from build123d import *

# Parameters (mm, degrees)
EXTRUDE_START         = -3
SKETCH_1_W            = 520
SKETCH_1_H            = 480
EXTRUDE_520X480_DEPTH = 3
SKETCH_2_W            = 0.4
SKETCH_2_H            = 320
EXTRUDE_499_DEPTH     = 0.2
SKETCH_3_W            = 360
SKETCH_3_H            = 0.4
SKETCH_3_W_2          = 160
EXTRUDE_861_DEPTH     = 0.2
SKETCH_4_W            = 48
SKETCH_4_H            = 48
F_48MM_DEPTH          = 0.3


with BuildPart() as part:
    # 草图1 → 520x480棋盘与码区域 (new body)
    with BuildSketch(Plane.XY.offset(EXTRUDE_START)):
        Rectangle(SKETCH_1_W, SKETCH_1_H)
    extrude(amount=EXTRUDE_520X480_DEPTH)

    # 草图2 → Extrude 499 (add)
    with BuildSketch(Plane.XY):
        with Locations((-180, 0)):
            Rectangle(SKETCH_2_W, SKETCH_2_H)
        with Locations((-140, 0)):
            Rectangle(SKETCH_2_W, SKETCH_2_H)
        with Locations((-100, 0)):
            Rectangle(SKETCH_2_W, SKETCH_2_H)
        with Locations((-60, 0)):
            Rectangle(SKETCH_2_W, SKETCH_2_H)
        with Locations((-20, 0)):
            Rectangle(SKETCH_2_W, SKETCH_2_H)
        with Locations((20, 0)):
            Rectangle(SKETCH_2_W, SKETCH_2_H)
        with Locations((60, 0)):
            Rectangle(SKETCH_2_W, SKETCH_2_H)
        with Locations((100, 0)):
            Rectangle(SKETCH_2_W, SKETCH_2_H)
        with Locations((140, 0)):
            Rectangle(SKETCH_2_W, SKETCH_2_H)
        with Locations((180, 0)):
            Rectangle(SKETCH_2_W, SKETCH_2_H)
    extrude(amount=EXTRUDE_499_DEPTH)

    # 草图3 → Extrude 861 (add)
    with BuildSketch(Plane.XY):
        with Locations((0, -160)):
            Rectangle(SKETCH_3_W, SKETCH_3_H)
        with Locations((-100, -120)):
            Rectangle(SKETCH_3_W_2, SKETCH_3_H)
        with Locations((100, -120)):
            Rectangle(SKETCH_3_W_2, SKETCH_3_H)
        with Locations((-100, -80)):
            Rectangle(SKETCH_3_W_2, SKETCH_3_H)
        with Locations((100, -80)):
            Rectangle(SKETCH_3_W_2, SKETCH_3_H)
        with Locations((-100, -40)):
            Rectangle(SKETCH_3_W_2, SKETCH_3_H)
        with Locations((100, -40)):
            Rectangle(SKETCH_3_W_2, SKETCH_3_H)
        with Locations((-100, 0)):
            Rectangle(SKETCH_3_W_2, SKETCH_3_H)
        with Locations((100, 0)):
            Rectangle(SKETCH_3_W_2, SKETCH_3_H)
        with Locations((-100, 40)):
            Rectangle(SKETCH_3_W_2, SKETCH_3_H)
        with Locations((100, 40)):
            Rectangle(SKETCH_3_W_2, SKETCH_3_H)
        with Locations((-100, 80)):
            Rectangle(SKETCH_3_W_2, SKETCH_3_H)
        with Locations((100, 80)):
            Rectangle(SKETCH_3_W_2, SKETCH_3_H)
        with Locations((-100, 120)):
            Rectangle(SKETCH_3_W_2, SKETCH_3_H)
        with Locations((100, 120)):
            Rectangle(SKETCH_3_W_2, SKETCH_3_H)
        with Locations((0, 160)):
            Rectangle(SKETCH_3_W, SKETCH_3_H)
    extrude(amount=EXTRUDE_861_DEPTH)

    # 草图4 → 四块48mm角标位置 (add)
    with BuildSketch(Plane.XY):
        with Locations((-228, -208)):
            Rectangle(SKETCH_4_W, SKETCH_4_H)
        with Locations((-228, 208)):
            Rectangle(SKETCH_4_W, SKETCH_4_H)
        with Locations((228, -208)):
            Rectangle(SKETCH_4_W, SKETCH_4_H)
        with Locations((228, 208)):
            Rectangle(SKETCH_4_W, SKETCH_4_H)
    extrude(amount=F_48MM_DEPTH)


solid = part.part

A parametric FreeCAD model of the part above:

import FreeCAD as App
import Part
import Sketcher
from FreeCAD import Vector

doc = App.newDocument("Part")
body = doc.addObject("PartDesign::Body", "Body")

# Sketch on XY plane
sketch1 = body.newObject("Sketcher::SketchObject", "Sketch")
sketch1.AttachmentSupport = (doc.getObject("XY_Plane"), [""])
sketch1.MapMode = "FlatFace"
sketch1.AttachmentOffset = App.Placement(Vector(0, 0, -3), App.Rotation())
sketch1.addGeometry([
    Part.LineSegment(Vector(-260, 240, 0), Vector(-260, -240, 0)),
    Part.LineSegment(Vector(-260, -240, 0), Vector(260, -240, 0)),
    Part.LineSegment(Vector(260, -240, 0), Vector(260, 240, 0)),
    Part.LineSegment(Vector(260, 240, 0), Vector(-260, 240, 0)),
], False)
sketch1.addConstraint([
    Sketcher.Constraint("Coincident", 0, 2, 1, 1),
    Sketcher.Constraint("Coincident", 1, 2, 2, 1),
    Sketcher.Constraint("Coincident", 2, 2, 3, 1),
    Sketcher.Constraint("Coincident", 3, 2, 0, 1),
    Sketcher.Constraint("Vertical", 0),
    Sketcher.Constraint("Horizontal", 1),
    Sketcher.Constraint("Vertical", 2),
    Sketcher.Constraint("Horizontal", 3),
    Sketcher.Constraint("Symmetric", 0, 2, 2, 2, -1, 1),
    Sketcher.Constraint("DistanceX", 1, 1, 1, 2, 520.0),
    Sketcher.Constraint("DistanceY", 0, 2, 0, 1, 480.0),
])
pad1 = body.newObject("PartDesign::Pad", "Pad")
pad1.Profile = sketch1
pad1.Length = 3

# Sketch on XY plane
sketch2 = body.newObject("Sketcher::SketchObject", "Sketch001")
sketch2.AttachmentSupport = (doc.getObject("XY_Plane"), [""])
sketch2.MapMode = "FlatFace"
sketch2.addGeometry([
    Part.LineSegment(Vector(-180.2, 160, 0), Vector(-180.2, -160, 0)),  # 0
    Part.LineSegment(Vector(-180.2, -160, 0), Vector(-179.8, -160, 0)),  # 1
    Part.LineSegment(Vector(-179.8, -160, 0), Vector(-179.8, 160, 0)),  # 2
    Part.LineSegment(Vector(-179.8, 160, 0), Vector(-180.2, 160, 0)),  # 3
    Part.LineSegment(Vector(-140.2, 160, 0), Vector(-140.2, -160, 0)),  # 4
    Part.LineSegment(Vector(-140.2, -160, 0), Vector(-139.8, -160, 0)),  # 5
    Part.LineSegment(Vector(-139.8, -160, 0), Vector(-139.8, 160, 0)),  # 6
    Part.LineSegment(Vector(-139.8, 160, 0), Vector(-140.2, 160, 0)),  # 7
    Part.LineSegment(Vector(-100.2, 160, 0), Vector(-100.2, -160, 0)),  # 8
    Part.LineSegment(Vector(-100.2, -160, 0), Vector(-99.8, -160, 0)),  # 9
    Part.LineSegment(Vector(-99.8, -160, 0), Vector(-99.8, 160, 0)),  # 10
    Part.LineSegment(Vector(-99.8, 160, 0), Vector(-100.2, 160, 0)),  # 11
    Part.LineSegment(Vector(-60.2, 160, 0), Vector(-60.2, -160, 0)),  # 12
    Part.LineSegment(Vector(-60.2, -160, 0), Vector(-59.8, -160, 0)),  # 13
    Part.LineSegment(Vector(-59.8, -160, 0), Vector(-59.8, 160, 0)),  # 14
    Part.LineSegment(Vector(-59.8, 160, 0), Vector(-60.2, 160, 0)),  # 15
    Part.LineSegment(Vector(-20.2, 160, 0), Vector(-20.2, -160, 0)),  # 16
    Part.LineSegment(Vector(-20.2, -160, 0), Vector(-19.8, -160, 0)),  # 17
    Part.LineSegment(Vector(-19.8, -160, 0), Vector(-19.8, 160, 0)),  # 18
    Part.LineSegment(Vector(-19.8, 160, 0), Vector(-20.2, 160, 0)),  # 19
    Part.LineSegment(Vector(19.8, 160, 0), Vector(19.8, -160, 0)),  # 20
    Part.LineSegment(Vector(19.8, -160, 0), Vector(20.2, -160, 0)),  # 21
    Part.LineSegment(Vector(20.2, -160, 0), Vector(20.2, 160, 0)),  # 22
    Part.LineSegment(Vector(20.2, 160, 0), Vector(19.8, 160, 0)),  # 23
    Part.LineSegment(Vector(59.8, 160, 0), Vector(59.8, -160, 0)),  # 24
    Part.LineSegment(Vector(59.8, -160, 0), Vector(60.2, -160, 0)),  # 25
    Part.LineSegment(Vector(60.2, -160, 0), Vector(60.2, 160, 0)),  # 26
    Part.LineSegment(Vector(60.2, 160, 0), Vector(59.8, 160, 0)),  # 27
    Part.LineSegment(Vector(99.8, 160, 0), Vector(99.8, -160, 0)),  # 28
    Part.LineSegment(Vector(99.8, -160, 0), Vector(100.2, -160, 0)),  # 29
    Part.LineSegment(Vector(100.2, -160, 0), Vector(100.2, 160, 0)),  # 30
    Part.LineSegment(Vector(100.2, 160, 0), Vector(99.8, 160, 0)),  # 31
    Part.LineSegment(Vector(139.8, 160, 0), Vector(139.8, -160, 0)),  # 32
    Part.LineSegment(Vector(139.8, -160, 0), Vector(140.2, -160, 0)),  # 33
    Part.LineSegment(Vector(140.2, -160, 0), Vector(140.2, 160, 0)),  # 34
    Part.LineSegment(Vector(140.2, 160, 0), Vector(139.8, 160, 0)),  # 35
    Part.LineSegment(Vector(179.8, 160, 0), Vector(179.8, -160, 0)),  # 36
    Part.LineSegment(Vector(179.8, -160, 0), Vector(180.2, -160, 0)),  # 37
    Part.LineSegment(Vector(180.2, -160, 0), Vector(180.2, 160, 0)),  # 38
    Part.LineSegment(Vector(180.2, 160, 0), Vector(179.8, 160, 0)),  # 39
], False)
sketch2.addConstraint([
    Sketcher.Constraint("Coincident", 0, 2, 1, 1),
    Sketcher.Constraint("Coincident", 1, 2, 2, 1),
    Sketcher.Constraint("Coincident", 2, 2, 3, 1),
    Sketcher.Constraint("Coincident", 3, 2, 0, 1),
    Sketcher.Constraint("Coincident", 4, 2, 5, 1),
    Sketcher.Constraint("Coincident", 5, 2, 6, 1),
    Sketcher.Constraint("Coincident", 6, 2, 7, 1),
    Sketcher.Constraint("Coincident", 7, 2, 4, 1),
    Sketcher.Constraint("Coincident", 8, 2, 9, 1),
    Sketcher.Constraint("Coincident", 9, 2, 10, 1),
    Sketcher.Constraint("Coincident", 10, 2, 11, 1),
    Sketcher.Constraint("Coincident", 11, 2, 8, 1),
    Sketcher.Constraint("Coincident", 12, 2, 13, 1),
    Sketcher.Constraint("Coincident", 13, 2, 14, 1),
    Sketcher.Constraint("Coincident", 14, 2, 15, 1),
    Sketcher.Constraint("Coincident", 15, 2, 12, 1),
    Sketcher.Constraint("Coincident", 16, 2, 17, 1),
    Sketcher.Constraint("Coincident", 17, 2, 18, 1),
    Sketcher.Constraint("Coincident", 18, 2, 19, 1),
    Sketcher.Constraint("Coincident", 19, 2, 16, 1),
    Sketcher.Constraint("Coincident", 20, 2, 21, 1),
    Sketcher.Constraint("Coincident", 21, 2, 22, 1),
    Sketcher.Constraint("Coincident", 22, 2, 23, 1),
    Sketcher.Constraint("Coincident", 23, 2, 20, 1),
    Sketcher.Constraint("Coincident", 24, 2, 25, 1),
    Sketcher.Constraint("Coincident", 25, 2, 26, 1),
    Sketcher.Constraint("Coincident", 26, 2, 27, 1),
    Sketcher.Constraint("Coincident", 27, 2, 24, 1),
    Sketcher.Constraint("Coincident", 28, 2, 29, 1),
    Sketcher.Constraint("Coincident", 29, 2, 30, 1),
    Sketcher.Constraint("Coincident", 30, 2, 31, 1),
    Sketcher.Constraint("Coincident", 31, 2, 28, 1),
    Sketcher.Constraint("Coincident", 32, 2, 33, 1),
    Sketcher.Constraint("Coincident", 33, 2, 34, 1),
    Sketcher.Constraint("Coincident", 34, 2, 35, 1),
    Sketcher.Constraint("Coincident", 35, 2, 32, 1),
    Sketcher.Constraint("Coincident", 36, 2, 37, 1),
    Sketcher.Constraint("Coincident", 37, 2, 38, 1),
    Sketcher.Constraint("Coincident", 38, 2, 39, 1),
    Sketcher.Constraint("Coincident", 39, 2, 36, 1),
    Sketcher.Constraint("Vertical", 0),
    Sketcher.Constraint("Horizontal", 1),
    Sketcher.Constraint("Vertical", 2),
    Sketcher.Constraint("Horizontal", 3),
    Sketcher.Constraint("Vertical", 4),
    Sketcher.Constraint("Horizontal", 5),
    Sketcher.Constraint("Vertical", 6),
    Sketcher.Constraint("Horizontal", 7),
    Sketcher.Constraint("Vertical", 8),
    Sketcher.Constraint("Horizontal", 9),
    Sketcher.Constraint("Vertical", 10),
    Sketcher.Constraint("Horizontal", 11),
    Sketcher.Constraint("Vertical", 12),
    Sketcher.Constraint("Horizontal", 13),
    Sketcher.Constraint("Vertical", 14),
    Sketcher.Constraint("Horizontal", 15),
    Sketcher.Constraint("Vertical", 16),
    Sketcher.Constraint("Horizontal", 17),
    Sketcher.Constraint("Vertical", 18),
    Sketcher.Constraint("Horizontal", 19),
    Sketcher.Constraint("Vertical", 20),
    Sketcher.Constraint("Horizontal", 21),
    Sketcher.Constraint("Vertical", 22),
    Sketcher.Constraint("Horizontal", 23),
    Sketcher.Constraint("Vertical", 24),
    Sketcher.Constraint("Horizontal", 25),
    Sketcher.Constraint("Vertical", 26),
    Sketcher.Constraint("Horizontal", 27),
    Sketcher.Constraint("Vertical", 28),
    Sketcher.Constraint("Horizontal", 29),
    Sketcher.Constraint("Vertical", 30),
    Sketcher.Constraint("Horizontal", 31),
    Sketcher.Constraint("Vertical", 32),
    Sketcher.Constraint("Horizontal", 33),
    Sketcher.Constraint("Vertical", 34),
    Sketcher.Constraint("Horizontal", 35),
    Sketcher.Constraint("Vertical", 36),
    Sketcher.Constraint("Horizontal", 37),
    Sketcher.Constraint("Vertical", 38),
    Sketcher.Constraint("Horizontal", 39),
    Sketcher.Constraint("Symmetric", 18, 2, 20, 2, -1, 1),
    Sketcher.Constraint("Symmetric", 16, 2, 22, 2, -1, 1),
    Sketcher.Constraint("Symmetric", 14, 2, 24, 2, -1, 1),
    Sketcher.Constraint("Symmetric", 12, 2, 26, 2, -1, 1),
    Sketcher.Constraint("Symmetric", 10, 2, 28, 2, -1, 1),
    Sketcher.Constraint("Symmetric", 8, 2, 30, 2, -1, 1),
    Sketcher.Constraint("Symmetric", 6, 2, 32, 2, -1, 1),
    Sketcher.Constraint("Symmetric", 4, 2, 34, 2, -1, 1),
    Sketcher.Constraint("Symmetric", 2, 2, 36, 2, -1, 1),
    Sketcher.Constraint("Symmetric", 0, 2, 38, 2, -1, 1),
    Sketcher.Constraint("Horizontal", 1, 2, 4, 2),
    Sketcher.Constraint("Horizontal", 3, 2, 6, 2),
    Sketcher.Constraint("Horizontal", 5, 2, 8, 2),
    Sketcher.Constraint("Horizontal", 7, 2, 10, 2),
    Sketcher.Constraint("Horizontal", 9, 2, 12, 2),
    Sketcher.Constraint("Horizontal", 11, 2, 14, 2),
    Sketcher.Constraint("Horizontal", 13, 2, 16, 2),
    Sketcher.Constraint("Horizontal", 15, 2, 18, 2),
    Sketcher.Constraint("Horizontal", 17, 2, 20, 2),
    Sketcher.Constraint("Equal", 3, 5),
    Sketcher.Constraint("Equal", 7, 9),
    Sketcher.Constraint("Equal", 11, 13),
    Sketcher.Constraint("Equal", 15, 17),
    Sketcher.Constraint("DistanceY", 0, 2, 0, 1, 320.0),
    Sketcher.Constraint("DistanceX", 1, 1, 1, 2, 0.4),
    Sketcher.Constraint("DistanceX", 0, 2, 4, 2, 40.0),
    Sketcher.Constraint("DistanceX", 4, 2, 8, 2, 40.0),
    Sketcher.Constraint("DistanceX", 8, 2, 12, 2, 40.0),
    Sketcher.Constraint("DistanceX", 12, 2, 16, 2, 40.0),
    Sketcher.Constraint("DistanceX", 16, 2, 20, 2, 40.0),
])
pad2 = body.newObject("PartDesign::Pad", "Pad001")
pad2.Profile = sketch2
pad2.Length = 0.2

# Sketch on XY plane
sketch3 = body.newObject("Sketcher::SketchObject", "Sketch002")
sketch3.AttachmentSupport = (doc.getObject("XY_Plane"), [""])
sketch3.MapMode = "FlatFace"
sketch3.addGeometry([
    Part.LineSegment(Vector(-180, -159.8, 0), Vector(-180, -160.2, 0)),  # 0
    Part.LineSegment(Vector(-180, -160.2, 0), Vector(180, -160.2, 0)),  # 1
    Part.LineSegment(Vector(180, -160.2, 0), Vector(180, -159.8, 0)),  # 2
    Part.LineSegment(Vector(180, -159.8, 0), Vector(-180, -159.8, 0)),  # 3
    Part.LineSegment(Vector(-180, -119.8, 0), Vector(-180, -120.2, 0)),  # 4
    Part.LineSegment(Vector(-180, -120.2, 0), Vector(-20, -120.2, 0)),  # 5
    Part.LineSegment(Vector(-20, -120.2, 0), Vector(-20, -119.8, 0)),  # 6
    Part.LineSegment(Vector(-20, -119.8, 0), Vector(-180, -119.8, 0)),  # 7
    Part.LineSegment(Vector(20, -119.8, 0), Vector(20, -120.2, 0)),  # 8
    Part.LineSegment(Vector(20, -120.2, 0), Vector(180, -120.2, 0)),  # 9
    Part.LineSegment(Vector(180, -120.2, 0), Vector(180, -119.8, 0)),  # 10
    Part.LineSegment(Vector(180, -119.8, 0), Vector(20, -119.8, 0)),  # 11
    Part.LineSegment(Vector(-180, -79.8, 0), Vector(-180, -80.2, 0)),  # 12
    Part.LineSegment(Vector(-180, -80.2, 0), Vector(-20, -80.2, 0)),  # 13
    Part.LineSegment(Vector(-20, -80.2, 0), Vector(-20, -79.8, 0)),  # 14
    Part.LineSegment(Vector(-20, -79.8, 0), Vector(-180, -79.8, 0)),  # 15
    Part.LineSegment(Vector(20, -79.8, 0), Vector(20, -80.2, 0)),  # 16
    Part.LineSegment(Vector(20, -80.2, 0), Vector(180, -80.2, 0)),  # 17
    Part.LineSegment(Vector(180, -80.2, 0), Vector(180, -79.8, 0)),  # 18
    Part.LineSegment(Vector(180, -79.8, 0), Vector(20, -79.8, 0)),  # 19
    Part.LineSegment(Vector(-180, -39.8, 0), Vector(-180, -40.2, 0)),  # 20
    Part.LineSegment(Vector(-180, -40.2, 0), Vector(-20, -40.2, 0)),  # 21
    Part.LineSegment(Vector(-20, -40.2, 0), Vector(-20, -39.8, 0)),  # 22
    Part.LineSegment(Vector(-20, -39.8, 0), Vector(-180, -39.8, 0)),  # 23
    Part.LineSegment(Vector(20, -39.8, 0), Vector(20, -40.2, 0)),  # 24
    Part.LineSegment(Vector(20, -40.2, 0), Vector(180, -40.2, 0)),  # 25
    Part.LineSegment(Vector(180, -40.2, 0), Vector(180, -39.8, 0)),  # 26
    Part.LineSegment(Vector(180, -39.8, 0), Vector(20, -39.8, 0)),  # 27
    Part.LineSegment(Vector(-180, 0.2, 0), Vector(-180, -0.2, 0)),  # 28
    Part.LineSegment(Vector(-180, -0.2, 0), Vector(-20, -0.2, 0)),  # 29
    Part.LineSegment(Vector(-20, -0.2, 0), Vector(-20, 0.2, 0)),  # 30
    Part.LineSegment(Vector(-20, 0.2, 0), Vector(-180, 0.2, 0)),  # 31
    Part.LineSegment(Vector(20, 0.2, 0), Vector(20, -0.2, 0)),  # 32
    Part.LineSegment(Vector(20, -0.2, 0), Vector(180, -0.2, 0)),  # 33
    Part.LineSegment(Vector(180, -0.2, 0), Vector(180, 0.2, 0)),  # 34
    Part.LineSegment(Vector(180, 0.2, 0), Vector(20, 0.2, 0)),  # 35
    Part.LineSegment(Vector(-180, 40.2, 0), Vector(-180, 39.8, 0)),  # 36
    Part.LineSegment(Vector(-180, 39.8, 0), Vector(-20, 39.8, 0)),  # 37
    Part.LineSegment(Vector(-20, 39.8, 0), Vector(-20, 40.2, 0)),  # 38
    Part.LineSegment(Vector(-20, 40.2, 0), Vector(-180, 40.2, 0)),  # 39
    Part.LineSegment(Vector(20, 40.2, 0), Vector(20, 39.8, 0)),  # 40
    Part.LineSegment(Vector(20, 39.8, 0), Vector(180, 39.8, 0)),  # 41
    Part.LineSegment(Vector(180, 39.8, 0), Vector(180, 40.2, 0)),  # 42
    Part.LineSegment(Vector(180, 40.2, 0), Vector(20, 40.2, 0)),  # 43
    Part.LineSegment(Vector(-180, 80.2, 0), Vector(-180, 79.8, 0)),  # 44
    Part.LineSegment(Vector(-180, 79.8, 0), Vector(-20, 79.8, 0)),  # 45
    Part.LineSegment(Vector(-20, 79.8, 0), Vector(-20, 80.2, 0)),  # 46
    Part.LineSegment(Vector(-20, 80.2, 0), Vector(-180, 80.2, 0)),  # 47
    Part.LineSegment(Vector(20, 80.2, 0), Vector(20, 79.8, 0)),  # 48
    Part.LineSegment(Vector(20, 79.8, 0), Vector(180, 79.8, 0)),  # 49
    Part.LineSegment(Vector(180, 79.8, 0), Vector(180, 80.2, 0)),  # 50
    Part.LineSegment(Vector(180, 80.2, 0), Vector(20, 80.2, 0)),  # 51
    Part.LineSegment(Vector(-180, 120.2, 0), Vector(-180, 119.8, 0)),  # 52
    Part.LineSegment(Vector(-180, 119.8, 0), Vector(-20, 119.8, 0)),  # 53
    Part.LineSegment(Vector(-20, 119.8, 0), Vector(-20, 120.2, 0)),  # 54
    Part.LineSegment(Vector(-20, 120.2, 0), Vector(-180, 120.2, 0)),  # 55
    Part.LineSegment(Vector(20, 120.2, 0), Vector(20, 119.8, 0)),  # 56
    Part.LineSegment(Vector(20, 119.8, 0), Vector(180, 119.8, 0)),  # 57
    Part.LineSegment(Vector(180, 119.8, 0), Vector(180, 120.2, 0)),  # 58
    Part.LineSegment(Vector(180, 120.2, 0), Vector(20, 120.2, 0)),  # 59
    Part.LineSegment(Vector(-180, 160.2, 0), Vector(-180, 159.8, 0)),  # 60
    Part.LineSegment(Vector(-180, 159.8, 0), Vector(180, 159.8, 0)),  # 61
    Part.LineSegment(Vector(180, 159.8, 0), Vector(180, 160.2, 0)),  # 62
    Part.LineSegment(Vector(180, 160.2, 0), Vector(-180, 160.2, 0)),  # 63
], False)
sketch3.addConstraint([
    Sketcher.Constraint("Coincident", 0, 2, 1, 1),
    Sketcher.Constraint("Coincident", 1, 2, 2, 1),
    Sketcher.Constraint("Coincident", 2, 2, 3, 1),
    Sketcher.Constraint("Coincident", 3, 2, 0, 1),
    Sketcher.Constraint("Coincident", 4, 2, 5, 1),
    Sketcher.Constraint("Coincident", 5, 2, 6, 1),
    Sketcher.Constraint("Coincident", 6, 2, 7, 1),
    Sketcher.Constraint("Coincident", 7, 2, 4, 1),
    Sketcher.Constraint("Coincident", 8, 2, 9, 1),
    Sketcher.Constraint("Coincident", 9, 2, 10, 1),
    Sketcher.Constraint("Coincident", 10, 2, 11, 1),
    Sketcher.Constraint("Coincident", 11, 2, 8, 1),
    Sketcher.Constraint("Coincident", 12, 2, 13, 1),
    Sketcher.Constraint("Coincident", 13, 2, 14, 1),
    Sketcher.Constraint("Coincident", 14, 2, 15, 1),
    Sketcher.Constraint("Coincident", 15, 2, 12, 1),
    Sketcher.Constraint("Coincident", 16, 2, 17, 1),
    Sketcher.Constraint("Coincident", 17, 2, 18, 1),
    Sketcher.Constraint("Coincident", 18, 2, 19, 1),
    Sketcher.Constraint("Coincident", 19, 2, 16, 1),
    Sketcher.Constraint("Coincident", 20, 2, 21, 1),
    Sketcher.Constraint("Coincident", 21, 2, 22, 1),
    Sketcher.Constraint("Coincident", 22, 2, 23, 1),
    Sketcher.Constraint("Coincident", 23, 2, 20, 1),
    Sketcher.Constraint("Coincident", 24, 2, 25, 1),
    Sketcher.Constraint("Coincident", 25, 2, 26, 1),
    Sketcher.Constraint("Coincident", 26, 2, 27, 1),
    Sketcher.Constraint("Coincident", 27, 2, 24, 1),
    Sketcher.Constraint("Coincident", 28, 2, 29, 1),
    Sketcher.Constraint("Coincident", 29, 2, 30, 1),
    Sketcher.Constraint("Coincident", 30, 2, 31, 1),
    Sketcher.Constraint("Coincident", 31, 2, 28, 1),
    Sketcher.Constraint("Coincident", 32, 2, 33, 1),
    Sketcher.Constraint("Coincident", 33, 2, 34, 1),
    Sketcher.Constraint("Coincident", 34, 2, 35, 1),
    Sketcher.Constraint("Coincident", 35, 2, 32, 1),
    Sketcher.Constraint("Coincident", 36, 2, 37, 1),
    Sketcher.Constraint("Coincident", 37, 2, 38, 1),
    Sketcher.Constraint("Coincident", 38, 2, 39, 1),
    Sketcher.Constraint("Coincident", 39, 2, 36, 1),
    Sketcher.Constraint("Coincident", 40, 2, 41, 1),
    Sketcher.Constraint("Coincident", 41, 2, 42, 1),
    Sketcher.Constraint("Coincident", 42, 2, 43, 1),
    Sketcher.Constraint("Coincident", 43, 2, 40, 1),
    Sketcher.Constraint("Coincident", 44, 2, 45, 1),
    Sketcher.Constraint("Coincident", 45, 2, 46, 1),
    Sketcher.Constraint("Coincident", 46, 2, 47, 1),
    Sketcher.Constraint("Coincident", 47, 2, 44, 1),
    Sketcher.Constraint("Coincident", 48, 2, 49, 1),
    Sketcher.Constraint("Coincident", 49, 2, 50, 1),
    Sketcher.Constraint("Coincident", 50, 2, 51, 1),
    Sketcher.Constraint("Coincident", 51, 2, 48, 1),
    Sketcher.Constraint("Coincident", 52, 2, 53, 1),
    Sketcher.Constraint("Coincident", 53, 2, 54, 1),
    Sketcher.Constraint("Coincident", 54, 2, 55, 1),
    Sketcher.Constraint("Coincident", 55, 2, 52, 1),
    Sketcher.Constraint("Coincident", 56, 2, 57, 1),
    Sketcher.Constraint("Coincident", 57, 2, 58, 1),
    Sketcher.Constraint("Coincident", 58, 2, 59, 1),
    Sketcher.Constraint("Coincident", 59, 2, 56, 1),
    Sketcher.Constraint("Coincident", 60, 2, 61, 1),
    Sketcher.Constraint("Coincident", 61, 2, 62, 1),
    Sketcher.Constraint("Coincident", 62, 2, 63, 1),
    Sketcher.Constraint("Coincident", 63, 2, 60, 1),
    Sketcher.Constraint("Vertical", 0),
    Sketcher.Constraint("Horizontal", 1),
    Sketcher.Constraint("Vertical", 2),
    Sketcher.Constraint("Horizontal", 3),
    Sketcher.Constraint("Vertical", 4),
    Sketcher.Constraint("Horizontal", 5),
    Sketcher.Constraint("Vertical", 6),
    Sketcher.Constraint("Horizontal", 7),
    Sketcher.Constraint("Vertical", 8),
    Sketcher.Constraint("Horizontal", 9),
    Sketcher.Constraint("Vertical", 10),
    Sketcher.Constraint("Horizontal", 11),
    Sketcher.Constraint("Vertical", 12),
    Sketcher.Constraint("Horizontal", 13),
    Sketcher.Constraint("Vertical", 14),
    Sketcher.Constraint("Horizontal", 15),
    Sketcher.Constraint("Vertical", 16),
    Sketcher.Constraint("Horizontal", 17),
    Sketcher.Constraint("Vertical", 18),
    Sketcher.Constraint("Horizontal", 19),
    Sketcher.Constraint("Vertical", 20),
    Sketcher.Constraint("Horizontal", 21),
    Sketcher.Constraint("Vertical", 22),
    Sketcher.Constraint("Horizontal", 23),
    Sketcher.Constraint("Vertical", 24),
    Sketcher.Constraint("Horizontal", 25),
    Sketcher.Constraint("Vertical", 26),
    Sketcher.Constraint("Horizontal", 27),
    Sketcher.Constraint("Vertical", 28),
    Sketcher.Constraint("Horizontal", 29),
    Sketcher.Constraint("Vertical", 30),
    Sketcher.Constraint("Horizontal", 31),
    Sketcher.Constraint("Vertical", 32),
    Sketcher.Constraint("Horizontal", 33),
    Sketcher.Constraint("Vertical", 34),
    Sketcher.Constraint("Horizontal", 35),
    Sketcher.Constraint("Vertical", 36),
    Sketcher.Constraint("Horizontal", 37),
    Sketcher.Constraint("Vertical", 38),
    Sketcher.Constraint("Horizontal", 39),
    Sketcher.Constraint("Vertical", 40),
    Sketcher.Constraint("Horizontal", 41),
    Sketcher.Constraint("Vertical", 42),
    Sketcher.Constraint("Horizontal", 43),
    Sketcher.Constraint("Vertical", 44),
    Sketcher.Constraint("Horizontal", 45),
    Sketcher.Constraint("Vertical", 46),
    Sketcher.Constraint("Horizontal", 47),
    Sketcher.Constraint("Vertical", 48),
    Sketcher.Constraint("Horizontal", 49),
    Sketcher.Constraint("Vertical", 50),
    Sketcher.Constraint("Horizontal", 51),
    Sketcher.Constraint("Vertical", 52),
    Sketcher.Constraint("Horizontal", 53),
    Sketcher.Constraint("Vertical", 54),
    Sketcher.Constraint("Horizontal", 55),
    Sketcher.Constraint("Vertical", 56),
    Sketcher.Constraint("Horizontal", 57),
    Sketcher.Constraint("Vertical", 58),
    Sketcher.Constraint("Horizontal", 59),
    Sketcher.Constraint("Vertical", 60),
    Sketcher.Constraint("Horizontal", 61),
    Sketcher.Constraint("Vertical", 62),
    Sketcher.Constraint("Horizontal", 63),
    Sketcher.Constraint("Symmetric", 30, 2, 32, 2, -1, 1),
    Sketcher.Constraint("Symmetric", 28, 2, 34, 2, -1, 1),
    Sketcher.Constraint("Symmetric", 26, 2, 36, 2, -1, 1),
    Sketcher.Constraint("Symmetric", 24, 2, 38, 2, -1, 1),
    Sketcher.Constraint("Symmetric", 22, 2, 40, 2, -1, 1),
    Sketcher.Constraint("Symmetric", 20, 2, 42, 2, -1, 1),
    Sketcher.Constraint("Symmetric", 18, 2, 44, 2, -1, 1),
    Sketcher.Constraint("Symmetric", 16, 2, 46, 2, -1, 1),
    Sketcher.Constraint("Symmetric", 14, 2, 48, 2, -1, 1),
    Sketcher.Constraint("Symmetric", 12, 2, 50, 2, -1, 1),
    Sketcher.Constraint("Symmetric", 10, 2, 52, 2, -1, 1),
    Sketcher.Constraint("Symmetric", 8, 2, 54, 2, -1, 1),
    Sketcher.Constraint("Symmetric", 6, 2, 56, 2, -1, 1),
    Sketcher.Constraint("Symmetric", 4, 2, 58, 2, -1, 1),
    Sketcher.Constraint("Symmetric", 2, 2, 60, 2, -1, 1),
    Sketcher.Constraint("Symmetric", 0, 2, 62, 2, -1, 1),
    Sketcher.Constraint("Symmetric", 5, 2, 8, 2, -2),
    Sketcher.Constraint("Symmetric", 7, 2, 10, 2, -2),
    Sketcher.Constraint("Symmetric", 13, 2, 16, 2, -2),
    Sketcher.Constraint("Symmetric", 15, 2, 18, 2, -2),
    Sketcher.Constraint("Symmetric", 21, 2, 24, 2, -2),
    Sketcher.Constraint("Symmetric", 23, 2, 26, 2, -2),
    Sketcher.Constraint("Horizontal", 29, 2, 32, 2),
    Sketcher.Constraint("Vertical", 3, 2, 4, 2),
    Sketcher.Constraint("Vertical", 2, 2, 9, 2),
    Sketcher.Constraint("Vertical", 7, 2, 12, 2),
    Sketcher.Constraint("Vertical", 6, 2, 13, 2),
    Sketcher.Constraint("Vertical", 15, 2, 20, 2),
    Sketcher.Constraint("Vertical", 14, 2, 21, 2),
    Sketcher.Constraint("Vertical", 23, 2, 28, 2),
    Sketcher.Constraint("Vertical", 22, 2, 29, 2),
    Sketcher.Constraint("Equal", 2, 4),
    Sketcher.Constraint("Equal", 10, 12),
    Sketcher.Constraint("Equal", 18, 20),
    Sketcher.Constraint("Equal", 26, 28),
    Sketcher.Constraint("DistanceX", 1, 1, 1, 2, 360.0),
    Sketcher.Constraint("DistanceX", 5, 1, 5, 2, 160.0),
    Sketcher.Constraint("DistanceY", 0, 2, 0, 1, 0.4),
    Sketcher.Constraint("DistanceY", 0, 2, -1, 1, 160.2),
    Sketcher.Constraint("DistanceY", 4, 2, -1, 1, 120.2),
    Sketcher.Constraint("DistanceY", 12, 2, -1, 1, 80.2),
    Sketcher.Constraint("DistanceY", 20, 2, -1, 1, 40.2),
])
pad3 = body.newObject("PartDesign::Pad", "Pad002")
pad3.Profile = sketch3
pad3.Length = 0.2

# Sketch on XY plane
sketch4 = body.newObject("Sketcher::SketchObject", "Sketch003")
sketch4.AttachmentSupport = (doc.getObject("XY_Plane"), [""])
sketch4.MapMode = "FlatFace"
sketch4.addGeometry([
    Part.LineSegment(Vector(-252, -184, 0), Vector(-252, -232, 0)),  # 0
    Part.LineSegment(Vector(-252, -232, 0), Vector(-204, -232, 0)),  # 1
    Part.LineSegment(Vector(-204, -232, 0), Vector(-204, -184, 0)),  # 2
    Part.LineSegment(Vector(-204, -184, 0), Vector(-252, -184, 0)),  # 3
    Part.LineSegment(Vector(-252, 232, 0), Vector(-252, 184, 0)),  # 4
    Part.LineSegment(Vector(-252, 184, 0), Vector(-204, 184, 0)),  # 5
    Part.LineSegment(Vector(-204, 184, 0), Vector(-204, 232, 0)),  # 6
    Part.LineSegment(Vector(-204, 232, 0), Vector(-252, 232, 0)),  # 7
    Part.LineSegment(Vector(204, -184, 0), Vector(204, -232, 0)),  # 8
    Part.LineSegment(Vector(204, -232, 0), Vector(252, -232, 0)),  # 9
    Part.LineSegment(Vector(252, -232, 0), Vector(252, -184, 0)),  # 10
    Part.LineSegment(Vector(252, -184, 0), Vector(204, -184, 0)),  # 11
    Part.LineSegment(Vector(204, 232, 0), Vector(204, 184, 0)),  # 12
    Part.LineSegment(Vector(204, 184, 0), Vector(252, 184, 0)),  # 13
    Part.LineSegment(Vector(252, 184, 0), Vector(252, 232, 0)),  # 14
    Part.LineSegment(Vector(252, 232, 0), Vector(204, 232, 0)),  # 15
], False)
sketch4.addConstraint([
    Sketcher.Constraint("Coincident", 0, 2, 1, 1),
    Sketcher.Constraint("Coincident", 1, 2, 2, 1),
    Sketcher.Constraint("Coincident", 2, 2, 3, 1),
    Sketcher.Constraint("Coincident", 3, 2, 0, 1),
    Sketcher.Constraint("Coincident", 4, 2, 5, 1),
    Sketcher.Constraint("Coincident", 5, 2, 6, 1),
    Sketcher.Constraint("Coincident", 6, 2, 7, 1),
    Sketcher.Constraint("Coincident", 7, 2, 4, 1),
    Sketcher.Constraint("Coincident", 8, 2, 9, 1),
    Sketcher.Constraint("Coincident", 9, 2, 10, 1),
    Sketcher.Constraint("Coincident", 10, 2, 11, 1),
    Sketcher.Constraint("Coincident", 11, 2, 8, 1),
    Sketcher.Constraint("Coincident", 12, 2, 13, 1),
    Sketcher.Constraint("Coincident", 13, 2, 14, 1),
    Sketcher.Constraint("Coincident", 14, 2, 15, 1),
    Sketcher.Constraint("Coincident", 15, 2, 12, 1),
    Sketcher.Constraint("Vertical", 0),
    Sketcher.Constraint("Horizontal", 1),
    Sketcher.Constraint("Vertical", 2),
    Sketcher.Constraint("Horizontal", 3),
    Sketcher.Constraint("Vertical", 4),
    Sketcher.Constraint("Horizontal", 5),
    Sketcher.Constraint("Vertical", 6),
    Sketcher.Constraint("Horizontal", 7),
    Sketcher.Constraint("Vertical", 8),
    Sketcher.Constraint("Horizontal", 9),
    Sketcher.Constraint("Vertical", 10),
    Sketcher.Constraint("Horizontal", 11),
    Sketcher.Constraint("Vertical", 12),
    Sketcher.Constraint("Horizontal", 13),
    Sketcher.Constraint("Vertical", 14),
    Sketcher.Constraint("Horizontal", 15),
    Sketcher.Constraint("Symmetric", 6, 2, 8, 2, -1, 1),
    Sketcher.Constraint("Symmetric", 4, 2, 10, 2, -1, 1),
    Sketcher.Constraint("Symmetric", 2, 2, 12, 2, -1, 1),
    Sketcher.Constraint("Symmetric", 0, 2, 14, 2, -1, 1),
    Sketcher.Constraint("Symmetric", 1, 2, 8, 2, -2),
    Sketcher.Constraint("Symmetric", 3, 2, 10, 2, -2),
    Sketcher.Constraint("Equal", 15, 0),
    Sketcher.Constraint("DistanceX", 1, 1, 1, 2, 48.0),
    Sketcher.Constraint("DistanceX", 0, 2, -1, 1, 252.0),
    Sketcher.Constraint("DistanceY", 0, 2, -1, 1, 232.0),
])
pad4 = body.newObject("PartDesign::Pad", "Pad003")
pad4.Profile = sketch4
pad4.Length = 0.3

doc.recompute()
